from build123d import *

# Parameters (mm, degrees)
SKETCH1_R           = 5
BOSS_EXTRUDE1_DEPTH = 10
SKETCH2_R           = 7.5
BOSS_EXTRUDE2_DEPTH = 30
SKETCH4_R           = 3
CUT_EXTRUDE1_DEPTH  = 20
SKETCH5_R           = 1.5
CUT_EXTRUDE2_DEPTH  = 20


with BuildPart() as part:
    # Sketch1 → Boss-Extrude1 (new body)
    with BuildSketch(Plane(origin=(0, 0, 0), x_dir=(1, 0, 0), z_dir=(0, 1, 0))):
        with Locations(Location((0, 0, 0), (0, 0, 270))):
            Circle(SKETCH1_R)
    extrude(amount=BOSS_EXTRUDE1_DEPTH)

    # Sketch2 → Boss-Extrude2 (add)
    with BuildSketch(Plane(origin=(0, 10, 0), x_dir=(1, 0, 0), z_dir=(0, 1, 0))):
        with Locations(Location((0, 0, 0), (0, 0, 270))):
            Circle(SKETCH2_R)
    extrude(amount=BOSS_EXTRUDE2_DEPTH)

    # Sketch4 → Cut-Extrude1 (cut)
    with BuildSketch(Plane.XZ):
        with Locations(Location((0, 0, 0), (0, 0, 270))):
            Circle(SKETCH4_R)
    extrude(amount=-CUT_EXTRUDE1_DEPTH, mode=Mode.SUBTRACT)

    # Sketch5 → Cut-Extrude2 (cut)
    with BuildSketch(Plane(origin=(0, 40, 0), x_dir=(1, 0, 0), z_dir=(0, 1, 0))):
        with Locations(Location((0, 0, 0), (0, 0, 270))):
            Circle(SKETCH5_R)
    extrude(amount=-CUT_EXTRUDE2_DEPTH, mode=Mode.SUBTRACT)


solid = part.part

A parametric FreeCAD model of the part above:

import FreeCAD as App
import Part
import Sketcher

V = App.Vector

doc = App.newDocument("Part")
body = doc.addObject("PartDesign::Body", "Body")

sketch1 = body.newObject("Sketcher::SketchObject", "Sketch")
sketch1.AttachmentSupport = (doc.getObject("XZ_Plane"), [""])
sketch1.MapMode = "FlatFace"
sketch1.addGeometry(Part.Circle(V(0, 0, 0), V(0, 0, 1), 5), False)
sketch1.addConstraint(Sketcher.Constraint("Coincident", 0, 3, -1, 1))
sketch1.addConstraint(Sketcher.Constraint("Diameter", 0, 10.0))
pad1 = body.newObject("PartDesign::Pad", "Pad")
pad1.Profile = sketch1
pad1.Length = 10
pad1.Reversed = True

sketch2 = body.newObject("Sketcher::SketchObject", "Sketch001")
sketch2.AttachmentSupport = (doc.getObject("XZ_Plane"), [""])
sketch2.MapMode = "FlatFace"
sketch2.AttachmentOffset = App.Placement(V(0, 0, -10), App.Rotation())
sketch2.addGeometry(Part.Circle(V(0, 0, 0), V(0, 0, 1), 7.5), False)
sketch2.addConstraint(Sketcher.Constraint("Coincident", 0, 3, -1, 1))
sketch2.addConstraint(Sketcher.Constraint("Diameter", 0, 15.0))
pad2 = body.newObject("PartDesign::Pad", "Pad001")
pad2.Profile = sketch2
pad2.Length = 30
pad2.Reversed = True

sketch3 = body.newObject("Sketcher::SketchObject", "Sketch002")
sketch3.AttachmentSupport = (doc.getObject("XZ_Plane"), [""])
sketch3.MapMode = "FlatFace"
sketch3.addGeometry(Part.Circle(V(0, 0, 0), V(0, 0, 1), 3), False)
sketch3.addConstraint(Sketcher.Constraint("Coincident", 0, 3, -1, 1))
sketch3.addConstraint(Sketcher.Constraint("Diameter", 0, 6.0))
pocket1 = body.newObject("PartDesign::Pocket", "Pocket")
pocket1.Profile = sketch3
pocket1.Length = 20

sketch4 = body.newObject("Sketcher::SketchObject", "Sketch003")
sketch4.AttachmentSupport = (doc.getObject("XZ_Plane"), [""])
sketch4.MapMode = "FlatFace"
sketch4.AttachmentOffset = App.Placement(V(0, 0, -40), App.Rotation())
sketch4.addGeometry(Part.Circle(V(0, 0, 0), V(0, 0, 1), 1.5), False)
sketch4.addConstraint(Sketcher.Constraint("Coincident", 0, 3, -1, 1))
sketch4.addConstraint(Sketcher.Constraint("Diameter", 0, 3.0))
pocket2 = body.newObject("PartDesign::Pocket", "Pocket001")
pocket2.Profile = sketch4
pocket2.Length = 20
pocket2.Reversed = True

doc.recompute()
